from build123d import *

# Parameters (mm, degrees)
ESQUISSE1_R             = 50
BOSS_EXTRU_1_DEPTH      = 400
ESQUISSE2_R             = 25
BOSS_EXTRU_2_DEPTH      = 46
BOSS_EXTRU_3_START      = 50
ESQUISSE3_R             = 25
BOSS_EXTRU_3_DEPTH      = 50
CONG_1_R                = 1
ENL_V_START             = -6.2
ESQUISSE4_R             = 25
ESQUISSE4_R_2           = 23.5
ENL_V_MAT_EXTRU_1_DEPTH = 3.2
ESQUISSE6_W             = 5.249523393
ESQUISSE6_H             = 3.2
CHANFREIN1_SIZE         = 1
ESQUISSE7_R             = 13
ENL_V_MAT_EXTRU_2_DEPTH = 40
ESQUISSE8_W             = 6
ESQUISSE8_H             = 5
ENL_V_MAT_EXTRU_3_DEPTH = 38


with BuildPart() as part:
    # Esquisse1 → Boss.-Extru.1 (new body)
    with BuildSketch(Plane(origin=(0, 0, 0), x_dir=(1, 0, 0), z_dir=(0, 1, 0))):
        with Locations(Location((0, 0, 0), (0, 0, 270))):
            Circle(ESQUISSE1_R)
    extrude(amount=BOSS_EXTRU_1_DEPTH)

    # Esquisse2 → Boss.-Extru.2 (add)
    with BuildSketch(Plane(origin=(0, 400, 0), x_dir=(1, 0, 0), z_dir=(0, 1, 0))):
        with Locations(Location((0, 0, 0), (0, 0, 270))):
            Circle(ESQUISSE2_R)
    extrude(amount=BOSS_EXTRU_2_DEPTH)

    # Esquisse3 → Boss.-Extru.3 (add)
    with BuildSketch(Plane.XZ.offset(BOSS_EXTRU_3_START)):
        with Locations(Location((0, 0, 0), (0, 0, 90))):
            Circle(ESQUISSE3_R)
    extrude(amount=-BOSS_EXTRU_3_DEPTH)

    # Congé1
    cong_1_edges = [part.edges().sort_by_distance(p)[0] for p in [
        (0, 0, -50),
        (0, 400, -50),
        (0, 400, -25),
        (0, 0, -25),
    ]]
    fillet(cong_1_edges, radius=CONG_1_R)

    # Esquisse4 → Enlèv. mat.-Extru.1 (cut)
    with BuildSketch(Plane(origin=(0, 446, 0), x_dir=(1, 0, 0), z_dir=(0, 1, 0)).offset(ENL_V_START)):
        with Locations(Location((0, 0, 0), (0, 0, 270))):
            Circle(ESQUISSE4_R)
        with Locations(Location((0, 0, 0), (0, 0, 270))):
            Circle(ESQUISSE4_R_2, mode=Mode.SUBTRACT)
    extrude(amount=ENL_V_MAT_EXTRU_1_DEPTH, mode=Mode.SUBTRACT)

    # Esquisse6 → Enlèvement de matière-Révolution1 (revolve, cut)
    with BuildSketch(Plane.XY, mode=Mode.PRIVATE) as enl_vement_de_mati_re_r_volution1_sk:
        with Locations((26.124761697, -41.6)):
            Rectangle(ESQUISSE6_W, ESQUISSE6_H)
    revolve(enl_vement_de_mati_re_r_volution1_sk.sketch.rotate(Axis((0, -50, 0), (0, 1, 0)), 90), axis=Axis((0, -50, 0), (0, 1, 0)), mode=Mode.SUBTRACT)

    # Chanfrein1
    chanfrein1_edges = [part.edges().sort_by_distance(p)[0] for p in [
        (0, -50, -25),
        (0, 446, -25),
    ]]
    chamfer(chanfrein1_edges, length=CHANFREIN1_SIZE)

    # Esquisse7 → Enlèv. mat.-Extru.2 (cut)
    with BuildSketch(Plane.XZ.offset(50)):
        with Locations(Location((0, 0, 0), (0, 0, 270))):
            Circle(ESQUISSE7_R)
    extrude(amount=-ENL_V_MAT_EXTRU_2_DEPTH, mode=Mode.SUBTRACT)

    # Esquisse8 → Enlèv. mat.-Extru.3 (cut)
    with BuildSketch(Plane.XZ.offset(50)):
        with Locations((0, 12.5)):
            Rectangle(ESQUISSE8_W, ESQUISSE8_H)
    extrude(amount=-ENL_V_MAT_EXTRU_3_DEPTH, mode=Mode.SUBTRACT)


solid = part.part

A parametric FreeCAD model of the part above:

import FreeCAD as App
import Part
import Sketcher

V = App.Vector


def edges_at(feature, points):
    """Names of the edges that pass closest to the given points."""
    edges = feature.Shape.Edges
    near = lambda p: min(range(len(edges)), key=lambda i: edges[i].distToShape(Part.Vertex(*p))[0])
    return sorted({f"Edge{near(p) + 1}" for p in points})

doc = App.newDocument("Part")
body = doc.addObject("PartDesign::Body", "Body")

# Sketch on XZ plane
sketch1 = doc.addObject("Sketcher::SketchObject", "Sketch")
body.addObject(sketch1)
sketch1.AttachmentSupport = (doc.XZ_Plane, [""])
sketch1.MapMode = "FlatFace"
sketch1.addGeometry(Part.Circle(V(0, 0, 0), V(0, 0, 1), 50), False)
sketch1.addConstraint([
    Sketcher.Constraint("Coincident", 0, 3, -1, 1),
    Sketcher.Constraint("Diameter", 0, 100.0),
])
pad1 = doc.addObject("PartDesign::Pad", "Pad")
body.addObject(pad1)
pad1.Profile = sketch1
pad1.Length = 400
pad1.Reversed = True

# Sketch on XZ plane
sketch2 = doc.addObject("Sketcher::SketchObject", "Sketch001")
body.addObject(sketch2)
sketch2.AttachmentSupport = (doc.XZ_Plane, [""])
sketch2.MapMode = "FlatFace"
sketch2.AttachmentOffset = App.Placement(V(0, 0, -400), App.Rotation())
sketch2.addGeometry(Part.Circle(V(0, 0, 0), V(0, 0, 1), 25), False)
sketch2.addConstraint([
    Sketcher.Constraint("Coincident", 0, 3, -1, 1),
    Sketcher.Constraint("Diameter", 0, 50.0),
])
pad2 = doc.addObject("PartDesign::Pad", "Pad001")
body.addObject(pad2)
pad2.Profile = sketch2
pad2.Length = 46
pad2.Reversed = True

# Sketch on XZ plane
sketch3 = doc.addObject("Sketcher::SketchObject", "Sketch002")
body.addObject(sketch3)
sketch3.AttachmentSupport = (doc.XZ_Plane, [""])
sketch3.MapMode = "FlatFace"
sketch3.AttachmentOffset = App.Placement(V(0, 0, 50), App.Rotation())
sketch3.addGeometry(Part.Circle(V(0, 0, 0), V(0, 0, 1), 25), False)
sketch3.addConstraint([
    Sketcher.Constraint("Coincident", 0, 3, -1, 1),
    Sketcher.Constraint("Diameter", 0, 50.0),
])
pad3 = doc.addObject("PartDesign::Pad", "Pad002")
body.addObject(pad3)
pad3.Profile = sketch3
pad3.Length = 50
pad3.Reversed = True
doc.recompute()

fillet = doc.addObject("PartDesign::Fillet", "Fillet")
body.addObject(fillet)
fillet.Base = (pad3, edges_at(pad3, [
    (0, 0, -50),
    (0, 400, -50),
    (0, 400, -25),
    (0, 0, -25),
]))
fillet.Radius = 1

# Sketch on XZ plane
sketch4 = doc.addObject("Sketcher::SketchObject", "Sketch003")
body.addObject(sketch4)
sketch4.AttachmentSupport = (doc.XZ_Plane, [""])
sketch4.MapMode = "FlatFace"
sketch4.AttachmentOffset = App.Placement(V(0, 0, -439.8), App.Rotation())
sketch4.addGeometry([
    Part.Circle(V(0, 0, 0), V(0, 0, 1), 25),
    Part.Circle(V(0, 0, 0), V(0, 0, 1), 23.5),
], False)
sketch4.addConstraint([
    Sketcher.Constraint("Coincident", 0, 3, -1, 1),
    Sketcher.Constraint("Coincident", 1, 3, -1, 1),
    Sketcher.Constraint("Diameter", 0, 50.0),
    Sketcher.Constraint("Diameter", 1, 47.0),
])
pocket1 = doc.addObject("PartDesign::Pocket", "Pocket")
body.addObject(pocket1)
pocket1.Profile = sketch4
pocket1.Length = 3.2

# Sketch on XY plane
sketch5 = doc.addObject("Sketcher::SketchObject", "Sketch004")
body.addObject(sketch5)
sketch5.AttachmentSupport = (doc.XY_Plane, [""])
sketch5.MapMode = "FlatFace"
sketch5.addGeometry([
    Part.LineSegment(V(23.5, -40, 0), V(23.5, -43.2, 0)),
    Part.LineSegment(V(23.5, -43.2, 0), V(28.749523, -43.2, 0)),
    Part.LineSegment(V(28.749523, -43.2, 0), V(28.749523, -40, 0)),
    Part.LineSegment(V(28.749523, -40, 0), V(23.5, -40, 0)),
], False)
sketch5.addConstraint([
    Sketcher.Constraint("Coincident", 0, 2, 1, 1),
    Sketcher.Constraint("Coincident", 1, 2, 2, 1),
    Sketcher.Constraint("Coincident", 2, 2, 3, 1),
    Sketcher.Constraint("Coincident", 3, 2, 0, 1),
    Sketcher.Constraint("Vertical", 0),
    Sketcher.Constraint("Horizontal", 1),
    Sketcher.Constraint("Vertical", 2),
    Sketcher.Constraint("Horizontal", 3),
    Sketcher.Constraint("DistanceY", 0, 2, 0, 1, 3.2),
    Sketcher.Constraint("DistanceY", 2, 2, -1, 1, 40.0),
    Sketcher.Constraint("DistanceX", -1, 1, 0, 2, 23.5),
    Sketcher.Constraint("DistanceX", 1, 1, 1, 2, 5.249523),
])
groove = doc.addObject("PartDesign::Groove", "Groove")
body.addObject(groove)
groove.Profile = sketch5
groove.ReferenceAxis = (sketch5, ["V_Axis"])
groove.Angle = 360
doc.recompute()

chamfer = doc.addObject("PartDesign::Chamfer", "Chamfer")
body.addObject(chamfer)
chamfer.Base = (groove, edges_at(groove, [(0, -50, -25), (0, 446, -25)]))
chamfer.Size = 1

# Sketch on XZ plane
sketch6 = doc.addObject("Sketcher::SketchObject", "Sketch005")
body.addObject(sketch6)
sketch6.AttachmentSupport = (doc.XZ_Plane, [""])
sketch6.MapMode = "FlatFace"
sketch6.AttachmentOffset = App.Placement(V(0, 0, 50), App.Rotation())
sketch6.addGeometry(Part.Circle(V(0, 0, 0), V(0, 0, 1), 13), False)
sketch6.addConstraint([
    Sketcher.Constraint("Coincident", 0, 3, -1, 1),
    Sketcher.Constraint("Diameter", 0, 26.0),
])
pocket2 = doc.addObject("PartDesign::Pocket", "Pocket001")
body.addObject(pocket2)
pocket2.Profile = sketch6
pocket2.Length = 40

# Sketch on XZ plane
sketch7 = doc.addObject("Sketcher::SketchObject", "Sketch006")
body.addObject(sketch7)
sketch7.AttachmentSupport = (doc.XZ_Plane, [""])
sketch7.MapMode = "FlatFace"
sketch7.AttachmentOffset = App.Placement(V(0, 0, 50), App.Rotation())
sketch7.addGeometry([
    Part.LineSegment(V(-3, 15, 0), V(-3, 10, 0)),
    Part.LineSegment(V(-3, 10, 0), V(3, 10, 0)),
    Part.LineSegment(V(3, 10, 0), V(3, 15, 0)),
    Part.LineSegment(V(3, 15, 0), V(-3, 15, 0)),
], False)
sketch7.addConstraint([
    Sketcher.Constraint("Coincident", 0, 2, 1, 1),
    Sketcher.Constraint("Coincident", 1, 2, 2, 1),
    Sketcher.Constraint("Coincident", 2, 2, 3, 1),
    Sketcher.Constraint("Coincident", 3, 2, 0, 1),
    Sketcher.Constraint("Vertical", 0),
    Sketcher.Constraint("Horizontal", 1),
    Sketcher.Constraint("Vertical", 2),
    Sketcher.Constraint("Horizontal", 3),
    Sketcher.Constraint("DistanceX", 1, 1, 1, 2, 6.0),
    Sketcher.Constraint("DistanceY", 0, 2, 0, 1, 5.0),
    Sketcher.Constraint("DistanceX", 0, 2, -1, 1, 3.0),
    Sketcher.Constraint("DistanceY", -1, 1, 0, 2, 10.0),
])
pocket3 = doc.addObject("PartDesign::Pocket", "Pocket002")
body.addObject(pocket3)
pocket3.Profile = sketch7
pocket3.Length = 38

doc.recompute()
